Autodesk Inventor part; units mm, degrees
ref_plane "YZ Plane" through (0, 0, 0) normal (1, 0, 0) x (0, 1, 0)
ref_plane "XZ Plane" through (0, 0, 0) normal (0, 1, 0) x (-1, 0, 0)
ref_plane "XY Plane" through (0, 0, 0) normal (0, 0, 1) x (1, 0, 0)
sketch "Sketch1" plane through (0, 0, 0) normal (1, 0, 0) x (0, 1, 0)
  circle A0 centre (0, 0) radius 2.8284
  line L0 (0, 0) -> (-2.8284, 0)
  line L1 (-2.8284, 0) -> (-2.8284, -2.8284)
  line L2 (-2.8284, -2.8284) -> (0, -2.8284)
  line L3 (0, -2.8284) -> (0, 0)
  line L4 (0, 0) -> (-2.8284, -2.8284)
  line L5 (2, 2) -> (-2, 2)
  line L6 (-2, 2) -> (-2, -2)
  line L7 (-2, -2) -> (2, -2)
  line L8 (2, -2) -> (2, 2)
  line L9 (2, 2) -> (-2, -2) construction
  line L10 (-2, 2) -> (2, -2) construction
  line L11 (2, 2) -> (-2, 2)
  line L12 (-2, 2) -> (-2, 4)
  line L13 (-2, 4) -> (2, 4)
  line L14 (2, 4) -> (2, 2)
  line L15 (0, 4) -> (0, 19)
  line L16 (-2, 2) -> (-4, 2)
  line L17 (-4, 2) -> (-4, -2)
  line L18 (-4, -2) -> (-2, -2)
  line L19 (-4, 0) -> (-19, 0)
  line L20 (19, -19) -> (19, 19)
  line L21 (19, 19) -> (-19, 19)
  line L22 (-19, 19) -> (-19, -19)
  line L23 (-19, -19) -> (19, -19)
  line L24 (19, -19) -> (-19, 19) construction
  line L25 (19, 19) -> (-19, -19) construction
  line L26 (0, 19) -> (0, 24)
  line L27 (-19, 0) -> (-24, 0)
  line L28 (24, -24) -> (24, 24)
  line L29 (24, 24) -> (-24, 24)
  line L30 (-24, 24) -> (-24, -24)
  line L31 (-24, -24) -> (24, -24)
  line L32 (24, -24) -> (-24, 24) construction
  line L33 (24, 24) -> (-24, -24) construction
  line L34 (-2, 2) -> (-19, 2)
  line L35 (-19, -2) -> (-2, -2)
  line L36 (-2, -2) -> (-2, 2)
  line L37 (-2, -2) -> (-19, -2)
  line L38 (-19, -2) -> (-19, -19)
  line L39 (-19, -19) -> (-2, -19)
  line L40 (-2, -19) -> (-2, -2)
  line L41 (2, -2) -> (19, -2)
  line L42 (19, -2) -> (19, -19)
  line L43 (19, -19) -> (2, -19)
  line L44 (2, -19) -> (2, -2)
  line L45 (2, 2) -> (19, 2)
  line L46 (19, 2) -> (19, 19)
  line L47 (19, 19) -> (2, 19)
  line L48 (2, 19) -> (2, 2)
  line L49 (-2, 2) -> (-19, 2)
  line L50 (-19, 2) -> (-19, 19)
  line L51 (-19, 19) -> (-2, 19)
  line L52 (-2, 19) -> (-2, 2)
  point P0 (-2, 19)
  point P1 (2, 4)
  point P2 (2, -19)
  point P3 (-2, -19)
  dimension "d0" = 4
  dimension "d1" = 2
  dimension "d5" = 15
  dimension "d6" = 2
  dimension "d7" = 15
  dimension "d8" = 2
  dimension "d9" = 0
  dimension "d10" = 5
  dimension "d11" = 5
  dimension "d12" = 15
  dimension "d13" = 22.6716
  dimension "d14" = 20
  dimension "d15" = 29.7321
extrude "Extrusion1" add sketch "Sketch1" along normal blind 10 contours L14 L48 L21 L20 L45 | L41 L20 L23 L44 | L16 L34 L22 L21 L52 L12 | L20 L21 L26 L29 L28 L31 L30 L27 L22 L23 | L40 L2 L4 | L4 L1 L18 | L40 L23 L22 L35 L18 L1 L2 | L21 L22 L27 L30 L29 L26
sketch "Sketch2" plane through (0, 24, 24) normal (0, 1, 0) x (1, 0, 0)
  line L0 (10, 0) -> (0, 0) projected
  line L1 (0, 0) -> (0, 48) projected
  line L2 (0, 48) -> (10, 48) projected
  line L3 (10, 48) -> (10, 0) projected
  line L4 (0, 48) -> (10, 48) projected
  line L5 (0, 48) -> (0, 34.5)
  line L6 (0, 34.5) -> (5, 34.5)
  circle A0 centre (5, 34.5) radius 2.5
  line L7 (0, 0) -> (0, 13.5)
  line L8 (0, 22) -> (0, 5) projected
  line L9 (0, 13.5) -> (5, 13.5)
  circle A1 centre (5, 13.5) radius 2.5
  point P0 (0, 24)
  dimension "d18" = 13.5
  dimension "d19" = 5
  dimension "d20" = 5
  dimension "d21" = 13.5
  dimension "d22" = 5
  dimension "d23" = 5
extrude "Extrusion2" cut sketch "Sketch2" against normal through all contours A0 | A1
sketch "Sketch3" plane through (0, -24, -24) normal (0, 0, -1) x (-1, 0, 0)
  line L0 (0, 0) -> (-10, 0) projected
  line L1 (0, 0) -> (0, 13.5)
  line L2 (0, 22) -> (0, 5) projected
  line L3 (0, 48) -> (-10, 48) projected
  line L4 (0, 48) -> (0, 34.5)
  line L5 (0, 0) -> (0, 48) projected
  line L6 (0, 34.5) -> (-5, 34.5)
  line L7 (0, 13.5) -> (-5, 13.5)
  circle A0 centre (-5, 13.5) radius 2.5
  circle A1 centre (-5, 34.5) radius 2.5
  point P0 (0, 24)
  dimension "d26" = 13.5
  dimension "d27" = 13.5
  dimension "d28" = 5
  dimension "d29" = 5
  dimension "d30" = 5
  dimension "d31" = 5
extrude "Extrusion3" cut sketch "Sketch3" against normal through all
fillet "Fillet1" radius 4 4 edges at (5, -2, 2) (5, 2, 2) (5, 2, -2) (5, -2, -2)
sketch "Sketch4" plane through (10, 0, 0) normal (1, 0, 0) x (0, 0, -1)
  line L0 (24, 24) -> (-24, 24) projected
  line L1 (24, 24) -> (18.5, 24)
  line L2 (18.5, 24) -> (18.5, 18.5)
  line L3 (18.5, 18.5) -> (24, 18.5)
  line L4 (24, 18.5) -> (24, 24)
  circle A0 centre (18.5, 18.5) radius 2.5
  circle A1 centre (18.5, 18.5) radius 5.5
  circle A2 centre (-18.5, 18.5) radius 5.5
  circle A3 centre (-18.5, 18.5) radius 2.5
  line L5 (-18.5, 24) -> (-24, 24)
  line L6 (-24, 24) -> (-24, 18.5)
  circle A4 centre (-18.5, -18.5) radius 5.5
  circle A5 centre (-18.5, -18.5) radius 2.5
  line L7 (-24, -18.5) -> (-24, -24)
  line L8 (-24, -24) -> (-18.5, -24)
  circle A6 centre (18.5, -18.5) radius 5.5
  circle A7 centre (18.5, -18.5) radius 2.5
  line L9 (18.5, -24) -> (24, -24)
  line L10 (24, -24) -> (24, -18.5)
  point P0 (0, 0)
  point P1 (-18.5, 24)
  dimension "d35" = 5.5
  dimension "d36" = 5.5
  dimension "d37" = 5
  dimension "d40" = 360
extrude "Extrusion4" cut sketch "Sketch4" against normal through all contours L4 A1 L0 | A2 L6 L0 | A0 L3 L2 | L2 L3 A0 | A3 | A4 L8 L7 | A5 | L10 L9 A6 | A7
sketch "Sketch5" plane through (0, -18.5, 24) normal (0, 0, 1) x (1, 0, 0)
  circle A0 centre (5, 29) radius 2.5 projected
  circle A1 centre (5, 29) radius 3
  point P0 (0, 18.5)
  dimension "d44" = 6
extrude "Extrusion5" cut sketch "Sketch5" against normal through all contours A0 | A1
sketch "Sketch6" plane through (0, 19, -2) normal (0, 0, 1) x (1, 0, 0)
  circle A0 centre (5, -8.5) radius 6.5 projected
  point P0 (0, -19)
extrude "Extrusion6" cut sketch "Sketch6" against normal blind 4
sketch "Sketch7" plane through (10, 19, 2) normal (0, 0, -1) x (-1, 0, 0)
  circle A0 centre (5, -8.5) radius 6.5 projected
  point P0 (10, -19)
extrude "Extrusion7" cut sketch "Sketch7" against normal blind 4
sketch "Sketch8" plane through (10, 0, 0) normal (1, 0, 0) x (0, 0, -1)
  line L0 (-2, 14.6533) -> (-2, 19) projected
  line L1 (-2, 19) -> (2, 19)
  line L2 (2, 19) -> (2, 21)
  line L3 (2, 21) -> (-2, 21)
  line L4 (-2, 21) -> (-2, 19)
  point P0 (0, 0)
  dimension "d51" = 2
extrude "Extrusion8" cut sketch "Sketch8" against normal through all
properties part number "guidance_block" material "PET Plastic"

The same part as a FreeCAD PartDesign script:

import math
import FreeCAD as App
import Part
import Sketcher
from FreeCAD import Vector
Q = App.Units.Quantity


def edges_at(feature, points):
    """Names of the edges that pass closest to the given points."""
    edges = feature.Shape.Edges
    near = lambda p: min(range(len(edges)), key=lambda i: edges[i].distToShape(Part.Vertex(*p))[0])
    return sorted({f"Edge{near(p) + 1}" for p in points})

doc = App.newDocument("Part")
params = doc.addObject("Spreadsheet::Sheet", "Params")
for row, (alias, value) in enumerate([
    ("sketch1_width", "4 mm"),
    ("sketch1_width2", "48 mm"),
    ("pad1_length", "10 mm"),
    ("sketch2_diameter", "5 mm"),
    ("sketch3_diameter", "5 mm"),
    ("fillet_radius", "4 mm"),
    ("sketch4_diameter", "5 mm"),
    ("sketch4_radius", "5.5 mm"),
    ("sketch5_diameter", "6 mm"),
    ("sketch6_diameter", "13 mm"),
    ("pocket5_length", "4 mm"),
    ("sketch7_diameter", "13 mm"),
    ("pocket6_length", "4 mm"),
    ("sketch8_width", "2 mm"),
], start=1):
    params.set(f"A{row}", alias)
    params.set(f"B{row}", "=" + value)
    params.setAlias(f"B{row}", alias)

body = doc.addObject("PartDesign::Body", "Body")

sketch1 = body.newObject("Sketcher::SketchObject", "Sketch")
sketch1.AttachmentSupport = (doc.getObject("YZ_Plane"), [""])
sketch1.MapMode = "FlatFace"
sketch1.addGeometry([
    Part.LineSegment(Vector(24, 24, 0), Vector(-24, 24, 0)),
    Part.LineSegment(Vector(-24, 24, 0), Vector(-24, -24, 0)),
    Part.LineSegment(Vector(-24, -24, 0), Vector(24, -24, 0)),
    Part.LineSegment(Vector(24, -24, 0), Vector(24, 24, 0)),
    Part.LineSegment(Vector(2, 2, 0), Vector(19, 2, 0)),
    Part.LineSegment(Vector(19, 2, 0), Vector(19, -2, 0)),
    Part.LineSegment(Vector(19, -2, 0), Vector(2, -2, 0)),
    Part.LineSegment(Vector(2, -2, 0), Vector(2, -19, 0)),
    Part.LineSegment(Vector(2, -19, 0), Vector(-2, -19, 0)),
    Part.LineSegment(Vector(-2, -19, 0), Vector(-2, -2, 0)),
    Part.LineSegment(Vector(-2, -2, 0), Vector(-19, -2, 0)),
    Part.LineSegment(Vector(-19, -2, 0), Vector(-19, 2, 0)),
    Part.LineSegment(Vector(-19, 2, 0), Vector(-2, 2, 0)),
    Part.LineSegment(Vector(-2, 2, 0), Vector(-2, 19, 0)),
    Part.LineSegment(Vector(-2, 19, 0), Vector(2, 19, 0)),
    Part.LineSegment(Vector(2, 19, 0), Vector(2, 2, 0)),
], False)
sketch1.addConstraint([
    Sketcher.Constraint("Coincident", 0, 2, 1, 1),
    Sketcher.Constraint("Coincident", 1, 2, 2, 1),
    Sketcher.Constraint("Coincident", 2, 2, 3, 1),
    Sketcher.Constraint("Coincident", 3, 2, 0, 1),
    Sketcher.Constraint("Coincident", 4, 2, 5, 1),
    Sketcher.Constraint("Coincident", 5, 2, 6, 1),
    Sketcher.Constraint("Coincident", 6, 2, 7, 1),
    Sketcher.Constraint("Coincident", 7, 2, 8, 1),
    Sketcher.Constraint("Coincident", 8, 2, 9, 1),
    Sketcher.Constraint("Coincident", 9, 2, 10, 1),
    Sketcher.Constraint("Coincident", 10, 2, 11, 1),
    Sketcher.Constraint("Coincident", 11, 2, 12, 1),
    Sketcher.Constraint("Coincident", 12, 2, 13, 1),
    Sketcher.Constraint("Coincident", 13, 2, 14, 1),
    Sketcher.Constraint("Coincident", 14, 2, 15, 1),
    Sketcher.Constraint("Coincident", 15, 2, 4, 1),
    Sketcher.Constraint("Horizontal", 0),
    Sketcher.Constraint("Vertical", 1),
    Sketcher.Constraint("Horizontal", 2),
    Sketcher.Constraint("Vertical", 3),
    Sketcher.Constraint("Horizontal", 4),
    Sketcher.Constraint("Vertical", 5),
    Sketcher.Constraint("Horizontal", 6),
    Sketcher.Constraint("Vertical", 7),
    Sketcher.Constraint("Horizontal", 8),
    Sketcher.Constraint("Vertical", 9),
    Sketcher.Constraint("Horizontal", 10),
    Sketcher.Constraint("Vertical", 11),
    Sketcher.Constraint("Horizontal", 12),
    Sketcher.Constraint("Vertical", 13),
    Sketcher.Constraint("Horizontal", 14),
    Sketcher.Constraint("Vertical", 15),
    Sketcher.Constraint("Symmetric", 0, 2, 2, 2, -1, 1),
    Sketcher.Constraint("Symmetric", 4, 2, 10, 2, -1, 1),
    Sketcher.Constraint("Symmetric", 6, 2, 12, 2, -1, 1),
    Sketcher.Constraint("Symmetric", 8, 2, 14, 2, -1, 1),
    Sketcher.Constraint("Symmetric", 6, 2, 9, 2, -2),
    Sketcher.Constraint("Equal", 2, 1),
    Sketcher.Constraint("Equal", 14, 5),
    Sketcher.Constraint("Equal", 12, 7),
    Sketcher.Constraint("DistanceX", 8, 2, 8, 1, Q("4 mm")),
    Sketcher.Constraint("DistanceX", 4, 2, 3, 2, Q("5 mm")),
    Sketcher.Constraint("DistanceX", 0, 2, 0, 1, Q("48 mm")),
])
sketch1.setExpression("Constraints[40]", "Params.sketch1_width")
sketch1.setExpression("Constraints[42]", "Params.sketch1_width2")
pad1 = body.newObject("PartDesign::Pad", "Pad")
pad1.Profile = sketch1
pad1.setExpression("Length", "Params.pad1_length")

sketch2 = body.newObject("Sketcher::SketchObject", "Sketch001")
sketch2.AttachmentSupport = (doc.getObject("XZ_Plane"), [""])
sketch2.MapMode = "FlatFace"
sketch2.AttachmentOffset = App.Placement(Vector(0, 0, -24), App.Rotation())
sketch2.addGeometry([
    Part.Circle(Vector(5, -10.5, 0), Vector(0, 0, 1), 2.5),
    Part.Circle(Vector(5, 10.5, 0), Vector(0, 0, 1), 2.5),
], False)
sketch2.addConstraint([
    Sketcher.Constraint("Equal", 0, 1),
    Sketcher.Constraint("Symmetric", 0, 3, 1, 3, -1),
    Sketcher.Constraint("Diameter", 0, Q("5 mm")),
    Sketcher.Constraint("DistanceX", -1, 1, 0, 3, Q("5 mm")),
    Sketcher.Constraint("DistanceY", 0, 3, 1, 3, Q("21 mm")),
])
sketch2.setExpression("Constraints[2]", "Params.sketch2_diameter")
pocket1 = body.newObject("PartDesign::Pocket", "Pocket")
pocket1.Profile = sketch2
pocket1.Type = "ThroughAll"
pocket1.Reversed = True

sketch3 = body.newObject("Sketcher::SketchObject", "Sketch002")
sketch3.AttachmentSupport = (doc.getObject("XY_Plane"), [""])
sketch3.MapMode = "FlatFace"
sketch3.AttachmentOffset = App.Placement(Vector(0, 0, -24), App.Rotation())
sketch3.addGeometry([
    Part.Circle(Vector(5, -10.5, 0), Vector(0, 0, 1), 2.5),
    Part.Circle(Vector(5, 10.5, 0), Vector(0, 0, 1), 2.5),
], False)
sketch3.addConstraint([
    Sketcher.Constraint("Equal", 0, 1),
    Sketcher.Constraint("Symmetric", 0, 3, 1, 3, -1),
    Sketcher.Constraint("Diameter", 0, Q("5 mm")),
    Sketcher.Constraint("DistanceX", -1, 1, 0, 3, Q("5 mm")),
    Sketcher.Constraint("DistanceY", 0, 3, 1, 3, Q("21 mm")),
])
sketch3.setExpression("Constraints[2]", "Params.sketch3_diameter")
pocket2 = body.newObject("PartDesign::Pocket", "Pocket001")
pocket2.Profile = sketch3
pocket2.Type = "ThroughAll"
pocket2.Reversed = True
doc.recompute()

fillet = body.newObject("PartDesign::Fillet", "Fillet")
fillet.Base = (pocket2, edges_at(pocket2, [
    (5, -2, 2),
    (5, 2, 2),
    (5, 2, -2),
    (5, -2, -2),
]))
fillet.setExpression("Radius", "Params.fillet_radius")

sketch4 = body.newObject("Sketcher::SketchObject", "Sketch003")
sketch4.AttachmentSupport = (doc.getObject("YZ_Plane"), [""])
sketch4.MapMode = "FlatFace"
sketch4.AttachmentOffset = App.Placement(Vector(0, 0, 10), App.Rotation())
sketch4.addGeometry([
    Part.LineSegment(Vector(18.5, -24, 0), Vector(24, -24, 0)),
    Part.LineSegment(Vector(24, -24, 0), Vector(24, -18.5, 0)),
    Part.ArcOfCircle(Part.Circle(Vector(18.5, -18.5, 0), Vector(0, 0, 1), 5.5), math.radians(-90), math.radians(0)),
    Part.ArcOfCircle(Part.Circle(Vector(18.5, 18.5, 0), Vector(0, 0, 1), 5.5), math.radians(0), math.radians(90)),
    Part.LineSegment(Vector(24, 18.5, 0), Vector(24, 24, 0)),
    Part.LineSegment(Vector(24, 24, 0), Vector(18.5, 24, 0)),
    Part.Circle(Vector(18.5, -18.5, 0), Vector(0, 0, 1), 2.5),
    Part.Circle(Vector(18.5, 18.5, 0), Vector(0, 0, 1), 2.5),
    Part.ArcOfCircle(Part.Circle(Vector(-18.5, 18.5, 0), Vector(0, 0, 1), 5.5), math.radians(90), math.radians(180)),
    Part.LineSegment(Vector(-18.5, 24, 0), Vector(-24, 24, 0)),
    Part.LineSegment(Vector(-24, 24, 0), Vector(-24, 18.5, 0)),
    Part.Circle(Vector(-18.5, 18.5, 0), Vector(0, 0, 1), 2.5),
    Part.LineSegment(Vector(-24, -24, 0), Vector(-18.5, -24, 0)),
    Part.ArcOfCircle(Part.Circle(Vector(-18.5, -18.5, 0), Vector(0, 0, 1), 5.5), math.radians(180), math.radians(270)),
    Part.LineSegment(Vector(-24, -18.5, 0), Vector(-24, -24, 0)),
    Part.Circle(Vector(-18.5, -18.5, 0), Vector(0, 0, 1), 2.5),
], False)
sketch4.addConstraint([
    Sketcher.Constraint("Coincident", 0, 2, 1, 1),
    Sketcher.Constraint("Tangent", 1, 2, 2, 2),
    Sketcher.Constraint("Tangent", 2, 1, 0, 1),
    Sketcher.Constraint("Tangent", 3, 1, 4, 1),
    Sketcher.Constraint("Coincident", 4, 2, 5, 1),
    Sketcher.Constraint("Tangent", 5, 2, 3, 2),
    Sketcher.Constraint("Tangent", 8, 1, 9, 1),
    Sketcher.Constraint("Coincident", 9, 2, 10, 1),
    Sketcher.Constraint("Tangent", 10, 2, 8, 2),
    Sketcher.Constraint("Tangent", 12, 2, 13, 2),
    Sketcher.Constraint("Tangent", 13, 1, 14, 1),
    Sketcher.Constraint("Coincident", 14, 2, 12, 1),
    Sketcher.Constraint("Horizontal", 0),
    Sketcher.Constraint("Vertical", 1),
    Sketcher.Constraint("Vertical", 4),
    Sketcher.Constraint("Horizontal", 5),
    Sketcher.Constraint("Horizontal", 9),
    Sketcher.Constraint("Vertical", 10),
    Sketcher.Constraint("Horizontal", 12),
    Sketcher.Constraint("Vertical", 14),
    Sketcher.Constraint("Coincident", 6, 3, 2, 3),
    Sketcher.Constraint("Coincident", 7, 3, 3, 3),
    Sketcher.Constraint("Coincident", 11, 3, 8, 3),
    Sketcher.Constraint("Coincident", 15, 3, 13, 3),
    Sketcher.Constraint("Equal", 2, 3),
    Sketcher.Constraint("Equal", 6, 7),
    Sketcher.Constraint("Equal", 3, 8),
    Sketcher.Constraint("Equal", 7, 11),
    Sketcher.Constraint("Equal", 8, 13),
    Sketcher.Constraint("Equal", 11, 15),
    Sketcher.Constraint("Symmetric", 2, 3, 8, 3, -1, 1),
    Sketcher.Constraint("Symmetric", 3, 3, 13, 3, -1, 1),
    Sketcher.Constraint("Symmetric", 3, 3, 8, 3, -2),
    Sketcher.Constraint("Diameter", 6, Q("5 mm")),
    Sketcher.Constraint("Radius", 2, Q("5.5 mm")),
    Sketcher.Constraint("DistanceX", -1, 1, 0, 2, Q("24 mm")),
    Sketcher.Constraint("DistanceY", 0, 2, -1, 1, Q("24 mm")),
])
sketch4.setExpression("Constraints[33]", "Params.sketch4_diameter")
sketch4.setExpression("Constraints[34]", "Params.sketch4_radius")
pocket3 = body.newObject("PartDesign::Pocket", "Pocket002")
pocket3.Profile = sketch4
pocket3.Type = "ThroughAll"

sketch5 = body.newObject("Sketcher::SketchObject", "Sketch004")
sketch5.AttachmentSupport = (doc.getObject("XY_Plane"), [""])
sketch5.MapMode = "FlatFace"
sketch5.AttachmentOffset = App.Placement(Vector(0, 0, 24), App.Rotation())
sketch5.addGeometry(Part.Circle(Vector(5, 10.5, 0), Vector(0, 0, 1), 3), False)
sketch5.addConstraint([
    Sketcher.Constraint("Diameter", 0, Q("6 mm")),
    Sketcher.Constraint("DistanceX", -1, 1, 0, 3, Q("5 mm")),
    Sketcher.Constraint("DistanceY", -1, 1, 0, 3, Q("10.5 mm")),
])
sketch5.setExpression("Constraints[0]", "Params.sketch5_diameter")
pocket4 = body.newObject("PartDesign::Pocket", "Pocket003")
pocket4.Profile = sketch5
pocket4.Type = "ThroughAll"

sketch6 = body.newObject("Sketcher::SketchObject", "Sketch005")
sketch6.AttachmentSupport = (doc.getObject("XY_Plane"), [""])
sketch6.MapMode = "FlatFace"
sketch6.AttachmentOffset = App.Placement(Vector(0, 0, -2), App.Rotation())
sketch6.addGeometry(Part.Circle(Vector(5, 10, 0), Vector(0, 0, 1), 6), False)
sketch6.addConstraint([
    Sketcher.Constraint("Diameter", 0, Q("13 mm")),
    Sketcher.Constraint("DistanceX", -1, 1, 0, 3, Q("5 mm")),
    Sketcher.Constraint("DistanceY", -1, 1, 0, 3, Q("10.5 mm")),
])
sketch6.setExpression("Constraints[0]", "Params.sketch6_diameter")
pocket5 = body.newObject("PartDesign::Pocket", "Pocket004")
pocket5.Profile = sketch6
pocket5.setExpression("Length", "Params.pocket5_length")

sketch7 = body.newObject("Sketcher::SketchObject", "Sketch006")
sketch7.AttachmentSupport = (doc.getObject("XY_Plane"), [""])
sketch7.MapMode = "FlatFace"
sketch7.AttachmentOffset = App.Placement(Vector(0, 0, 2), App.Rotation())
sketch7.addGeometry(Part.Circle(Vector(5, 10, 0), Vector(0, 0, 1), 6), False)
sketch7.addConstraint([
    Sketcher.Constraint("Diameter", 0, Q("13 mm")),
    Sketcher.Constraint("DistanceX", -1, 1, 0, 3, Q("5 mm")),
    Sketcher.Constraint("DistanceY", -1, 1, 0, 3, Q("10.5 mm")),
])
sketch7.setExpression("Constraints[0]", "Params.sketch7_diameter")
pocket6 = body.newObject("PartDesign::Pocket", "Pocket005")
pocket6.Profile = sketch7
pocket6.setExpression("Length", "Params.pocket6_length")
pocket6.Reversed = True

sketch8 = body.newObject("Sketcher::SketchObject", "Sketch007")
sketch8.AttachmentSupport = (doc.getObject("YZ_Plane"), [""])
sketch8.MapMode = "FlatFace"
sketch8.AttachmentOffset = App.Placement(Vector(0, 0, 10), App.Rotation())
sketch8.addGeometry([
    Part.LineSegment(Vector(21, 2, 0), Vector(19, 2, 0)),
    Part.LineSegment(Vector(19, 2, 0), Vector(19, -2, 0)),
    Part.LineSegment(Vector(19, -2, 0), Vector(21, -2, 0)),
    Part.LineSegment(Vector(21, -2, 0), Vector(21, 2, 0)),
], False)
sketch8.addConstraint([
    Sketcher.Constraint("Coincident", 0, 2, 1, 1),
    Sketcher.Constraint("Coincident", 1, 2, 2, 1),
    Sketcher.Constraint("Coincident", 2, 2, 3, 1),
    Sketcher.Constraint("Coincident", 3, 2, 0, 1),
    Sketcher.Constraint("Horizontal", 0),
    Sketcher.Constraint("Vertical", 1),
    Sketcher.Constraint("Horizontal", 2),
    Sketcher.Constraint("Vertical", 3),
    Sketcher.Constraint("DistanceX", 0, 2, 0, 1, Q("2 mm")),
    Sketcher.Constraint("DistanceY", -1, 1, 0, 2, Q("2 mm")),
    Sketcher.Constraint("DistanceY", 1, 2, -1, 1, Q("2 mm")),
    Sketcher.Constraint("DistanceX", -1, 1, 0, 2, Q("19 mm")),
])
sketch8.setExpression("Constraints[8]", "Params.sketch8_width")
pocket7 = body.newObject("PartDesign::Pocket", "Pocket006")
pocket7.Profile = sketch8
pocket7.Type = "ThroughAll"

doc.recompute()
